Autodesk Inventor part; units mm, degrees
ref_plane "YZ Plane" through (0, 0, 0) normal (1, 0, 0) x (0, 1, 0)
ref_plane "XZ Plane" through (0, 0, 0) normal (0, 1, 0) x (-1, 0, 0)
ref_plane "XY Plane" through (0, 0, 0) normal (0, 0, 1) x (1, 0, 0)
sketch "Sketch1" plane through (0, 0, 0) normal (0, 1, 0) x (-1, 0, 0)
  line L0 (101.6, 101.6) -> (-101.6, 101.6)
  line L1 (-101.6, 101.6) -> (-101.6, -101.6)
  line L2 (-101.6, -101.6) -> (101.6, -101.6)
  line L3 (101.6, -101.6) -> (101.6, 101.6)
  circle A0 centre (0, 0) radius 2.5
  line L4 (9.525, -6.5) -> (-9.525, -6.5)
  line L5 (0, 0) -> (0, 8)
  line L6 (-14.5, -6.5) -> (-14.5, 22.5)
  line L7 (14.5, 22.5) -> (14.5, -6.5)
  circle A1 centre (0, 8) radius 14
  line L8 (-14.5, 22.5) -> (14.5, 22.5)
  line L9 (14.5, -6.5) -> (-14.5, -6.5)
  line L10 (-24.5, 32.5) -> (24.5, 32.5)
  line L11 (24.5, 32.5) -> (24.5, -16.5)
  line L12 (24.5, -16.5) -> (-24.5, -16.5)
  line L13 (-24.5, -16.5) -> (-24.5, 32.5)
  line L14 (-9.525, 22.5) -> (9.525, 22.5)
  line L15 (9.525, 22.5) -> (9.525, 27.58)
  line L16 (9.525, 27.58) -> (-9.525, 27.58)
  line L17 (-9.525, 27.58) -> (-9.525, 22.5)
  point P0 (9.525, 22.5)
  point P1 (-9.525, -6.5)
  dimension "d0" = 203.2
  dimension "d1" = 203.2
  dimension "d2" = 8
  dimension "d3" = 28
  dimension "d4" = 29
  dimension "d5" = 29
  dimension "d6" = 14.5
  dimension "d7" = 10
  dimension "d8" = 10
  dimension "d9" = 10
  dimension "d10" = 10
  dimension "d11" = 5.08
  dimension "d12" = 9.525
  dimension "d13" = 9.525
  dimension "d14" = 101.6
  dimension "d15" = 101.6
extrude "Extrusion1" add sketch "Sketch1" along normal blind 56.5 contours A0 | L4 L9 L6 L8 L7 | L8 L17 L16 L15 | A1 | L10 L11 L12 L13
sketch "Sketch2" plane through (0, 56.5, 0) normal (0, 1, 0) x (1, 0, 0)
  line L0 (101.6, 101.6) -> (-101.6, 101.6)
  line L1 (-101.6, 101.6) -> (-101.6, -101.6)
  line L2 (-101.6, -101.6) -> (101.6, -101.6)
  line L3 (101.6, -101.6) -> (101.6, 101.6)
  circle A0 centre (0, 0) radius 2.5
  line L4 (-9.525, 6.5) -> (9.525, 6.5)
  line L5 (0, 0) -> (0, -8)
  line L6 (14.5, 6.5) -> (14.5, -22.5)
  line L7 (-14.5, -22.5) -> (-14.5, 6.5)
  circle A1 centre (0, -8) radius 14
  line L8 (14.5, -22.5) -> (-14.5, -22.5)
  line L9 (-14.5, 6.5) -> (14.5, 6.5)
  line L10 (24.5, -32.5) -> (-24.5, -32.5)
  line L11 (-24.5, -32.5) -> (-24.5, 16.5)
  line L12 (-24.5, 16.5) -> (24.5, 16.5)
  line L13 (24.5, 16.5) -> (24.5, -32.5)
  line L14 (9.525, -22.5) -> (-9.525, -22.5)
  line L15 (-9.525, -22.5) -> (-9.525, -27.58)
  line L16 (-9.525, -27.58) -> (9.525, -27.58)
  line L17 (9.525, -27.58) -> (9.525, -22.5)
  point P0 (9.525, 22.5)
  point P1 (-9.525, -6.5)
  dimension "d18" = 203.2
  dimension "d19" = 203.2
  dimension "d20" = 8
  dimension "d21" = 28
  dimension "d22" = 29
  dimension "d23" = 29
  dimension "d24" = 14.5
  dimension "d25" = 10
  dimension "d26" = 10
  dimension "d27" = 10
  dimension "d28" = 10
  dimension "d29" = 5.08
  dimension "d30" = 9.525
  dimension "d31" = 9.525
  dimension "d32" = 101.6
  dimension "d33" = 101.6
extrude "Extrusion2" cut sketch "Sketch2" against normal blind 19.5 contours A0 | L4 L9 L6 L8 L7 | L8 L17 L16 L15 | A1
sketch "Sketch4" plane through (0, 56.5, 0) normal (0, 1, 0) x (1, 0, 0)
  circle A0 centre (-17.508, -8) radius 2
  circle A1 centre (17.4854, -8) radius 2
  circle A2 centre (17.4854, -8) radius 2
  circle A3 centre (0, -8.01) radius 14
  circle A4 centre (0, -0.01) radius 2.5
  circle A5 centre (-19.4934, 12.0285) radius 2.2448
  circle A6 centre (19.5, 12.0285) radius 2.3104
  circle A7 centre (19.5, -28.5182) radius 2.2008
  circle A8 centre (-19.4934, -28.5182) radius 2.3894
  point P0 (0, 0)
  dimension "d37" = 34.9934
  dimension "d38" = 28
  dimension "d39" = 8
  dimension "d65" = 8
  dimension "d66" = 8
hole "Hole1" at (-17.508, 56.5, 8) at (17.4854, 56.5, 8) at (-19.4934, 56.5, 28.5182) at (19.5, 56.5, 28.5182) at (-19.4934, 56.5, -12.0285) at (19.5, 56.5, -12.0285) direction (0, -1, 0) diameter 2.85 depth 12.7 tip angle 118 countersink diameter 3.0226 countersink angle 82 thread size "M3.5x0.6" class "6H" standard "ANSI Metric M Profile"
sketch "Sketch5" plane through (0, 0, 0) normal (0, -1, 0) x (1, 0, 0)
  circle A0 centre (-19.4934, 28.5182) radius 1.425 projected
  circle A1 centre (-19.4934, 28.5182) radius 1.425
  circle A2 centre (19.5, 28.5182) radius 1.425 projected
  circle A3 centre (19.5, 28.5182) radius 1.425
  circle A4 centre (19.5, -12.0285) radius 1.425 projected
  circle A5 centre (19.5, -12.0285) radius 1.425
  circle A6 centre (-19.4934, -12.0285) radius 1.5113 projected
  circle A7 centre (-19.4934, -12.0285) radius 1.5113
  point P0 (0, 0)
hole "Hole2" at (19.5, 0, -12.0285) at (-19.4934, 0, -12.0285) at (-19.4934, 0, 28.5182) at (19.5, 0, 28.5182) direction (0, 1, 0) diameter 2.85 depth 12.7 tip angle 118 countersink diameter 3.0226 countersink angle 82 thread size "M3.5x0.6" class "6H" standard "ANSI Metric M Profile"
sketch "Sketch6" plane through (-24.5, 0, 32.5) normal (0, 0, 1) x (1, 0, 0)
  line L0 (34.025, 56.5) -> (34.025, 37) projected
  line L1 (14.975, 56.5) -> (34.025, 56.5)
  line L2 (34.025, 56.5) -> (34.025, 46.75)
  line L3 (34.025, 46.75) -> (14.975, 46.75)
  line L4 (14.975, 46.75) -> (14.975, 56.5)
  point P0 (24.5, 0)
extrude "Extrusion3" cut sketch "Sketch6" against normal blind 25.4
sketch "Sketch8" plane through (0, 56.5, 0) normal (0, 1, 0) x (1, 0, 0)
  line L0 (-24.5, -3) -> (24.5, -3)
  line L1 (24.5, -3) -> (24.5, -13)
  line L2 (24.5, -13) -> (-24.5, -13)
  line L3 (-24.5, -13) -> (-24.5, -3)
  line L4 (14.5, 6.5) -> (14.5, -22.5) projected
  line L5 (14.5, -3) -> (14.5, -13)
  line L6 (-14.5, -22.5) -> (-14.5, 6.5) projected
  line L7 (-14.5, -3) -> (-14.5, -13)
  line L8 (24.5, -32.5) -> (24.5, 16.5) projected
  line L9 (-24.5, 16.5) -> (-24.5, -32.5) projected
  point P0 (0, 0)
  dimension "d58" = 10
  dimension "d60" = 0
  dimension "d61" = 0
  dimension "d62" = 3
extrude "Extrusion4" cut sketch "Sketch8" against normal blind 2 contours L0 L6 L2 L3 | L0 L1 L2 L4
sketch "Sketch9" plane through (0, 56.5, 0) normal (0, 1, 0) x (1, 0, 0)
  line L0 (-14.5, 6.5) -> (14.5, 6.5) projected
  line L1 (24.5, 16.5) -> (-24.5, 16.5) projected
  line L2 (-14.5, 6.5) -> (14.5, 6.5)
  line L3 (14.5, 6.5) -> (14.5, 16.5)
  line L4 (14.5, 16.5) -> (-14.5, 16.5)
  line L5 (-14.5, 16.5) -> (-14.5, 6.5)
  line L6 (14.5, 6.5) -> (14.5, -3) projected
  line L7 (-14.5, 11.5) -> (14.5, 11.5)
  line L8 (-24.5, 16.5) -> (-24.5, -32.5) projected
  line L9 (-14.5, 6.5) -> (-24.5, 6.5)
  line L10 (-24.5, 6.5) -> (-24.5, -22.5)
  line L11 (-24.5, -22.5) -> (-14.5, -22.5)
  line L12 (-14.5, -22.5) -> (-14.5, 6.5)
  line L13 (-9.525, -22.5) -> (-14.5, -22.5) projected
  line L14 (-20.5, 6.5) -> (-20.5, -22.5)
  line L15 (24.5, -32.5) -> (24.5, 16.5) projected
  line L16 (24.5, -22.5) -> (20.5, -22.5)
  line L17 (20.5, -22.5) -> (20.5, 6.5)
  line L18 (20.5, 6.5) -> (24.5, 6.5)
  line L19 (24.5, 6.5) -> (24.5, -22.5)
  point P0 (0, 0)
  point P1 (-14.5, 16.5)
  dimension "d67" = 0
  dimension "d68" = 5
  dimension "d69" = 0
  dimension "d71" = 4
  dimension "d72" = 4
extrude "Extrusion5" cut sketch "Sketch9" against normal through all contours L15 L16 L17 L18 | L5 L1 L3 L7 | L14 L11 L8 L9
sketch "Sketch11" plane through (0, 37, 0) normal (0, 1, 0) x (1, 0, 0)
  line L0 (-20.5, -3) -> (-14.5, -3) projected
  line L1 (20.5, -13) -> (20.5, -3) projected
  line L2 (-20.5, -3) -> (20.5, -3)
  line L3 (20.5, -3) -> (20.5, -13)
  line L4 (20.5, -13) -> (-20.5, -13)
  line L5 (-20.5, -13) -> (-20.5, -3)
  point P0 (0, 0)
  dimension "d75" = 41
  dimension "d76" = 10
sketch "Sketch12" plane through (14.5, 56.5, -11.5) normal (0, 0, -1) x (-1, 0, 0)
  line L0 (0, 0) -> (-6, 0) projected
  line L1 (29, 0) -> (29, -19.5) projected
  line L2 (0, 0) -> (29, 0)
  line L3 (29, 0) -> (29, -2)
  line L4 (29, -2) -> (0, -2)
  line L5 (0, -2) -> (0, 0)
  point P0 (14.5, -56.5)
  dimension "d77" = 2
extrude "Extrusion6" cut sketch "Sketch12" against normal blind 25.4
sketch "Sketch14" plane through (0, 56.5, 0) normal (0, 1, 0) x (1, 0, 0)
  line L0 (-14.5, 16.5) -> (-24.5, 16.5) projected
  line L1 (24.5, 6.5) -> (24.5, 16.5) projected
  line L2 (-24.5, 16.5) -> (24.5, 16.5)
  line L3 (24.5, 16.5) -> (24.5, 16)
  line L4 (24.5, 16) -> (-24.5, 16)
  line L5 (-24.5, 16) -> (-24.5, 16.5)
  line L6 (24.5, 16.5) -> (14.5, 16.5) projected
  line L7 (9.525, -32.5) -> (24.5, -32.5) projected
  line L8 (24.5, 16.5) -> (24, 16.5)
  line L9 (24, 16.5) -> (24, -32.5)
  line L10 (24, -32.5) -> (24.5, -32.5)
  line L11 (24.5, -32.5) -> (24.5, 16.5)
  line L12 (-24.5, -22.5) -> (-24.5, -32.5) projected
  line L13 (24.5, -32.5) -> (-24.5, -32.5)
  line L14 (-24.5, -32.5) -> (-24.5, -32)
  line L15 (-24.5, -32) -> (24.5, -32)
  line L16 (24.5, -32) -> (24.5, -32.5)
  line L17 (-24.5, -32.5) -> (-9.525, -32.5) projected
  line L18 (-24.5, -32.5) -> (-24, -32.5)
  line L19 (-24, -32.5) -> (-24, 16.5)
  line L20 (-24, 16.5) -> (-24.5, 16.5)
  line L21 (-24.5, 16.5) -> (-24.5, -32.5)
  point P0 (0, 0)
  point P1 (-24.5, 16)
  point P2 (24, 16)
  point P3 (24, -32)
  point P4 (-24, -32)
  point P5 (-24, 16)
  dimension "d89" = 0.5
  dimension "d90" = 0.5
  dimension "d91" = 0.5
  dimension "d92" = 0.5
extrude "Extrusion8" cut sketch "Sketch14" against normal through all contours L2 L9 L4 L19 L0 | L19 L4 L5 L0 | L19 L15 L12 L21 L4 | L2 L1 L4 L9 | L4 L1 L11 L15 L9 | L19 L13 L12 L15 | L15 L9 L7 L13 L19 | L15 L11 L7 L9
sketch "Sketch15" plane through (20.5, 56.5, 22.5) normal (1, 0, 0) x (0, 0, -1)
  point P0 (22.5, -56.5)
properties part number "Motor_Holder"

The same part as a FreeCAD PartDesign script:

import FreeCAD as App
import Part
import Sketcher

V = App.Vector
Q = App.Units.Quantity


def add_polygon(sketch, points):
    """Adds a closed chain of lines whose ends are joined by coincident constraints."""
    first, n = sketch.GeometryCount, len(points)
    for a, b in zip(points, points[1:] + points[:1]):
        sketch.addGeometry(Part.LineSegment(App.Vector(*a, 0), App.Vector(*b, 0)), False)
    for i in range(n):
        sketch.addConstraint(Sketcher.Constraint("Coincident", first + i, 2, first + (i + 1) % n, 1))

doc = App.newDocument("Part")
body = doc.addObject("PartDesign::Body", "Body")

# Sketch on XZ plane
sketch1 = doc.addObject("Sketcher::SketchObject", "Sketch")
body.addObject(sketch1)
sketch1.AttachmentSupport = (doc.XZ_Plane, [""])
sketch1.MapMode = "FlatFace"
add_polygon(sketch1, [(-24, 32), (24, 32), (24, -16), (-24, -16)])  # lines 0-3
sketch1.addConstraint([
    Sketcher.Constraint("Horizontal", 0),
    Sketcher.Constraint("Vertical", 1),
    Sketcher.Constraint("Horizontal", 2),
    Sketcher.Constraint("Vertical", 3),
    Sketcher.Constraint("Equal", 2, 1),
    Sketcher.Constraint("DistanceX", 0, 1, 0, 2, Q("49 mm")),
    Sketcher.Constraint("DistanceX", -1, 1, 0, 2, Q("24.5 mm")),
    Sketcher.Constraint("DistanceY", -1, 1, 0, 2, Q("32.5 mm")),
])
pad1 = doc.addObject("PartDesign::Pad", "Pad")
body.addObject(pad1)
pad1.Profile = sketch1
pad1.Length = 56.5
pad1.Reversed = True

# Sketch on XZ plane
sketch2 = doc.addObject("Sketcher::SketchObject", "Sketch001")
body.addObject(sketch2)
sketch2.AttachmentSupport = (doc.XZ_Plane, [""])
sketch2.MapMode = "FlatFace"
sketch2.AttachmentOffset = App.Placement(V(0, 0, -56.5), App.Rotation())
add_polygon(sketch2, [(-14.5, -6.5), (-14.5, 22.5), (-9.5, 22.5), (-9.5, 27.6), (9.5, 27.6), (9.5, 22.5), (14.5, 22.5), (14.5, -6.5)])  # lines 0-7
sketch2.addConstraint([
    Sketcher.Constraint("Vertical", 0),
    Sketcher.Constraint("Horizontal", 1),
    Sketcher.Constraint("Vertical", 2),
    Sketcher.Constraint("Horizontal", 3),
    Sketcher.Constraint("Vertical", 4),
    Sketcher.Constraint("Horizontal", 5),
    Sketcher.Constraint("Vertical", 6),
    Sketcher.Constraint("Horizontal", 7),
    Sketcher.Constraint("Symmetric", 1, 2, 4, 2, -2),
    Sketcher.Constraint("Equal", 1, 5),
    Sketcher.Constraint("Equal", 7, 0),
    Sketcher.Constraint("DistanceX", 7, 2, 7, 1, Q("29 mm")),
    Sketcher.Constraint("DistanceY", 2, 1, 2, 2, Q("5.08 mm")),
    Sketcher.Constraint("DistanceX", 1, 2, -1, 1, Q("9.525 mm")),
    Sketcher.Constraint("DistanceY", -1, 1, 0, 2, Q("22.5 mm")),
])
pocket1 = doc.addObject("PartDesign::Pocket", "Pocket")
body.addObject(pocket1)
pocket1.Profile = sketch2
pocket1.Length = 19.5
pocket1.Reversed = True

# Sketch on XZ plane
sketch3 = doc.addObject("Sketcher::SketchObject", "Sketch002")
body.addObject(sketch3)
sketch3.AttachmentSupport = (doc.XZ_Plane, [""])
sketch3.MapMode = "FlatFace"
sketch3.AttachmentOffset = App.Placement(V(0, 0, -56.5), App.Rotation())
sketch3.addGeometry([
    Part.Circle(V(-17.5, 8, 0), V(0, 0, 1), 1.4),  # 0
    Part.Circle(V(17.5, 8, 0), V(0, 0, 1), 1.4),  # 1
    Part.Circle(V(-19.5, 28.5, 0), V(0, 0, 1), 1.4),  # 2
    Part.Circle(V(19.5, 28.5, 0), V(0, 0, 1), 1.4),  # 3
    Part.Circle(V(-19.5, -12, 0), V(0, 0, 1), 1.4),  # 4
    Part.Circle(V(19.5, -12, 0), V(0, 0, 1), 1.4),  # 5
], False)
sketch3.addConstraint([
    Sketcher.Constraint("Equal", 0, 1),
    Sketcher.Constraint("Equal", 1, 2),
    Sketcher.Constraint("Equal", 2, 3),
    Sketcher.Constraint("Equal", 3, 4),
    Sketcher.Constraint("Equal", 4, 5),
    Sketcher.Constraint("Horizontal", 0, 3, 1, 3),
    Sketcher.Constraint("Horizontal", 2, 3, 3, 3),
    Sketcher.Constraint("Horizontal", 4, 3, 5, 3),
    Sketcher.Constraint("Vertical", 2, 3, 4, 3),
    Sketcher.Constraint("Vertical", 3, 3, 5, 3),
    Sketcher.Constraint("Diameter", 0, Q("2.85 mm")),
    Sketcher.Constraint("DistanceY", -1, 1, 0, 3, Q("8 mm")),
    Sketcher.Constraint("DistanceX", -1, 1, 3, 3, Q("19.5 mm")),
    Sketcher.Constraint("DistanceX", 0, 3, -1, 1, Q("17.508 mm")),
    Sketcher.Constraint("DistanceX", -1, 1, 1, 3, Q("17.4854 mm")),
    Sketcher.Constraint("DistanceX", 2, 3, -1, 1, Q("19.4934 mm")),
    Sketcher.Constraint("DistanceY", -1, 1, 2, 3, Q("28.5182 mm")),
    Sketcher.Constraint("DistanceY", 4, 3, -1, 1, Q("12.0285 mm")),
])
doc.recompute()
hole = doc.addObject("PartDesign::Hole", "Hole")
body.addObject(hole)
hole.Profile = sketch3
hole.ThreadType = "None"
hole.Diameter = 2.85
hole.DepthType = "Dimension"
hole.Depth = 12.7
hole.DrillPoint = "Angled"
hole.DrillPointAngle = 118
hole.HoleCutType = "Countersink"
hole.HoleCutDiameter = 3.0226
hole.HoleCutCountersinkAngle = 82
hole.Reversed = True

# Sketch on XZ plane
sketch4 = doc.addObject("Sketcher::SketchObject", "Sketch003")
body.addObject(sketch4)
sketch4.AttachmentSupport = (doc.XZ_Plane, [""])
sketch4.MapMode = "FlatFace"
sketch4.addGeometry([
    Part.Circle(V(19.5, -12, 0), V(0, 0, 1), 1.4),
    Part.Circle(V(-19.5, -12, 0), V(0, 0, 1), 1.4),
    Part.Circle(V(-19.5, 28.5, 0), V(0, 0, 1), 1.4),
    Part.Circle(V(19.5, 28.5, 0), V(0, 0, 1), 1.4),
], False)
sketch4.addConstraint([
    Sketcher.Constraint("Equal", 0, 1),
    Sketcher.Constraint("Equal", 1, 2),
    Sketcher.Constraint("Equal", 2, 3),
    Sketcher.Constraint("Horizontal", 0, 3, 1, 3),
    Sketcher.Constraint("Horizontal", 2, 3, 3, 3),
    Sketcher.Constraint("Vertical", 1, 3, 2, 3),
    Sketcher.Constraint("Vertical", 0, 3, 3, 3),
    Sketcher.Constraint("Diameter", 0, Q("2.85 mm")),
    Sketcher.Constraint("DistanceX", -1, 1, 0, 3, Q("19.5 mm")),
    Sketcher.Constraint("DistanceY", 0, 3, -1, 1, Q("12.0285 mm")),
    Sketcher.Constraint("DistanceX", 1, 3, -1, 1, Q("19.4934 mm")),
    Sketcher.Constraint("DistanceY", -1, 1, 2, 3, Q("28.5182 mm")),
])
doc.recompute()
hole2 = doc.addObject("PartDesign::Hole", "Hole001")
body.addObject(hole2)
hole2.Profile = sketch4
hole2.ThreadType = "None"
hole2.Diameter = 2.85
hole2.DepthType = "Dimension"
hole2.Depth = 12.7
hole2.DrillPoint = "Angled"
hole2.DrillPointAngle = 118
hole2.HoleCutType = "Countersink"
hole2.HoleCutDiameter = 3.0226
hole2.HoleCutCountersinkAngle = 82

# Sketch on XY plane
sketch5 = doc.addObject("Sketcher::SketchObject", "Sketch004")
body.addObject(sketch5)
sketch5.AttachmentSupport = (doc.XY_Plane, [""])
sketch5.MapMode = "FlatFace"
sketch5.AttachmentOffset = App.Placement(V(0, 0, 32.5), App.Rotation())
add_polygon(sketch5, [(10, 47), (10, 56), (-10, 56), (-10, 47)])  # lines 0-3
sketch5.addConstraint([
    Sketcher.Constraint("Vertical", 0),
    Sketcher.Constraint("Horizontal", 1),
    Sketcher.Constraint("Vertical", 2),
    Sketcher.Constraint("Horizontal", 3),
    Sketcher.Constraint("DistanceX", 1, 2, 1, 1, Q("19.05 mm")),
    Sketcher.Constraint("DistanceY", 0, 1, 0, 2, Q("9.75 mm")),
    Sketcher.Constraint("DistanceY", -1, 1, 0, 2, Q("56.5 mm")),
    Sketcher.Constraint("DistanceX", -1, 1, 0, 2, Q("9.525 mm")),
])
pocket2 = doc.addObject("PartDesign::Pocket", "Pocket001")
body.addObject(pocket2)
pocket2.Profile = sketch5
pocket2.Length = 25.4

# Sketch on XZ plane
sketch6 = doc.addObject("Sketcher::SketchObject", "Sketch005")
body.addObject(sketch6)
sketch6.AttachmentSupport = (doc.XZ_Plane, [""])
sketch6.MapMode = "FlatFace"
sketch6.AttachmentOffset = App.Placement(V(0, 0, -56.5), App.Rotation())
add_polygon(sketch6, [(-14, 3), (-24, 3), (-24, 13), (-14, 13)])  # lines 0-3
add_polygon(sketch6, [(24, 3), (14, 3), (14, 13), (24, 13)])  # lines 4-7
sketch6.addConstraint([
    Sketcher.Constraint("Horizontal", 0),
    Sketcher.Constraint("Vertical", 1),
    Sketcher.Constraint("Horizontal", 2),
    Sketcher.Constraint("Vertical", 3),
    Sketcher.Constraint("Horizontal", 4),
    Sketcher.Constraint("Vertical", 5),
    Sketcher.Constraint("Horizontal", 6),
    Sketcher.Constraint("Vertical", 7),
    Sketcher.Constraint("Symmetric", 3, 2, 4, 2, -2),
    Sketcher.Constraint("Symmetric", 1, 2, 6, 2, -2),
    Sketcher.Constraint("Equal", 6, 1),
    Sketcher.Constraint("DistanceX", 0, 2, 0, 1, Q("10 mm")),
    Sketcher.Constraint("DistanceY", -1, 1, 0, 2, Q("3 mm")),
    Sketcher.Constraint("DistanceX", 3, 2, 4, 2, Q("29 mm")),
])
pocket3 = doc.addObject("PartDesign::Pocket", "Pocket002")
body.addObject(pocket3)
pocket3.Profile = sketch6
pocket3.Length = 2
pocket3.Reversed = True

# Sketch on XZ plane
sketch7 = doc.addObject("Sketcher::SketchObject", "Sketch006")
body.addObject(sketch7)
sketch7.AttachmentSupport = (doc.XZ_Plane, [""])
sketch7.MapMode = "FlatFace"
sketch7.AttachmentOffset = App.Placement(V(0, 0, -56.5), App.Rotation())
add_polygon(sketch7, [(24.5, 22.5), (24.5, -6.5), (20.5, -6.5), (20.5, 22.5)])  # lines 0-3
add_polygon(sketch7, [(-14.5, -16.5), (-14.5, -11.5), (14.5, -11.5), (14.5, -16.5)])  # lines 4-7
add_polygon(sketch7, [(-20.5, 22.5), (-20.5, -6.5), (-24.5, -6.5), (-24.5, 22.5)])  # lines 8-11
sketch7.addConstraint([
    Sketcher.Constraint("Vertical", 0),
    Sketcher.Constraint("Horizontal", 1),
    Sketcher.Constraint("Vertical", 2),
    Sketcher.Constraint("Horizontal", 3),
    Sketcher.Constraint("Vertical", 4),
    Sketcher.Constraint("Horizontal", 5),
    Sketcher.Constraint("Vertical", 6),
    Sketcher.Constraint("Horizontal", 7),
    Sketcher.Constraint("Vertical", 8),
    Sketcher.Constraint("Horizontal", 9),
    Sketcher.Constraint("Vertical", 10),
    Sketcher.Constraint("Horizontal", 11),
    Sketcher.Constraint("Symmetric", 1, 2, 8, 2, -2),
    Sketcher.Constraint("Symmetric", 3, 2, 10, 2, -2),
    Sketcher.Constraint("Equal", 7, 0),
    Sketcher.Constraint("DistanceX", 1, 2, 1, 1, Q("4 mm")),
    Sketcher.Constraint("DistanceY", 4, 1, 4, 2, Q("5 mm")),
    Sketcher.Constraint("DistanceY", 4, 2, 1, 2, Q("5 mm")),
    Sketcher.Constraint("DistanceX", 5, 1, 5, 2, Q("29 mm")),
    Sketcher.Constraint("DistanceX", 4, 2, 1, 2, Q("35 mm")),
    Sketcher.Constraint("DistanceX", 8, 2, 4, 2, Q("6 mm")),
    Sketcher.Constraint("DistanceY", 0, 2, -1, 1, Q("6.5 mm")),
])
pocket4 = doc.addObject("PartDesign::Pocket", "Pocket003")
body.addObject(pocket4)
pocket4.Profile = sketch7
pocket4.Type = "ThroughAll"
pocket4.Reversed = True

# Sketch on XY plane
sketch8 = doc.addObject("Sketcher::SketchObject", "Sketch007")
body.addObject(sketch8)
sketch8.AttachmentSupport = (doc.XY_Plane, [""])
sketch8.MapMode = "FlatFace"
sketch8.AttachmentOffset = App.Placement(V(0, 0, -11.5), App.Rotation())
add_polygon(sketch8, [(-14.5, 54.5), (-14.5, 56.5), (14.5, 56.5), (14.5, 54.5)])  # lines 0-3
sketch8.addConstraint([
    Sketcher.Constraint("Vertical", 0),
    Sketcher.Constraint("Horizontal", 1),
    Sketcher.Constraint("Vertical", 2),
    Sketcher.Constraint("Horizontal", 3),
    Sketcher.Constraint("DistanceY", 0, 1, 0, 2, Q("2 mm")),
    Sketcher.Constraint("DistanceX", 1, 1, 1, 2, Q("29 mm")),
    Sketcher.Constraint("DistanceX", 0, 2, -1, 1, Q("14.5 mm")),
    Sketcher.Constraint("DistanceY", -1, 1, 0, 2, Q("56.5 mm")),
])
pocket5 = doc.addObject("PartDesign::Pocket", "Pocket004")
body.addObject(pocket5)
pocket5.Profile = sketch8
pocket5.Length = 25.4
pocket5.Reversed = True

# Sketch on XZ plane
sketch9 = doc.addObject("Sketcher::SketchObject", "Sketch008")
body.addObject(sketch9)
sketch9.AttachmentSupport = (doc.XZ_Plane, [""])
sketch9.MapMode = "FlatFace"
sketch9.AttachmentOffset = App.Placement(V(0, 0, -56.5), App.Rotation())
add_polygon(sketch9, [(-24, -16), (-24, 32), (24, 32), (24, -16)])  # lines 0-3
add_polygon(sketch9, [(-24, -16), (24, -16), (24, 32), (-24, 32)])  # lines 4-7
sketch9.addConstraint([
    Sketcher.Constraint("Vertical", 0),
    Sketcher.Constraint("Horizontal", 1),
    Sketcher.Constraint("Vertical", 2),
    Sketcher.Constraint("Horizontal", 3),
    Sketcher.Constraint("Horizontal", 4),
    Sketcher.Constraint("Vertical", 5),
    Sketcher.Constraint("Horizontal", 6),
    Sketcher.Constraint("Vertical", 7),
    Sketcher.Constraint("Equal", 3, 0),
    Sketcher.Constraint("Equal", 6, 5),
    Sketcher.Constraint("DistanceX", 4, 2, 2, 2, Q("0.5 mm")),
    Sketcher.Constraint("DistanceY", 2, 2, 4, 2, Q("0.5 mm")),
    Sketcher.Constraint("DistanceY", 5, 2, 1, 2, Q("0.5 mm")),
    Sketcher.Constraint("DistanceX", 1, 1, 1, 2, Q("49 mm")),
    Sketcher.Constraint("DistanceX", -1, 1, 4, 2, Q("24 mm")),
    Sketcher.Constraint("DistanceY", 4, 2, -1, 1, Q("16 mm")),
])
pocket6 = doc.addObject("PartDesign::Pocket", "Pocket005")
body.addObject(pocket6)
pocket6.Profile = sketch9
pocket6.Type = "ThroughAll"
pocket6.Reversed = True

doc.recompute()
